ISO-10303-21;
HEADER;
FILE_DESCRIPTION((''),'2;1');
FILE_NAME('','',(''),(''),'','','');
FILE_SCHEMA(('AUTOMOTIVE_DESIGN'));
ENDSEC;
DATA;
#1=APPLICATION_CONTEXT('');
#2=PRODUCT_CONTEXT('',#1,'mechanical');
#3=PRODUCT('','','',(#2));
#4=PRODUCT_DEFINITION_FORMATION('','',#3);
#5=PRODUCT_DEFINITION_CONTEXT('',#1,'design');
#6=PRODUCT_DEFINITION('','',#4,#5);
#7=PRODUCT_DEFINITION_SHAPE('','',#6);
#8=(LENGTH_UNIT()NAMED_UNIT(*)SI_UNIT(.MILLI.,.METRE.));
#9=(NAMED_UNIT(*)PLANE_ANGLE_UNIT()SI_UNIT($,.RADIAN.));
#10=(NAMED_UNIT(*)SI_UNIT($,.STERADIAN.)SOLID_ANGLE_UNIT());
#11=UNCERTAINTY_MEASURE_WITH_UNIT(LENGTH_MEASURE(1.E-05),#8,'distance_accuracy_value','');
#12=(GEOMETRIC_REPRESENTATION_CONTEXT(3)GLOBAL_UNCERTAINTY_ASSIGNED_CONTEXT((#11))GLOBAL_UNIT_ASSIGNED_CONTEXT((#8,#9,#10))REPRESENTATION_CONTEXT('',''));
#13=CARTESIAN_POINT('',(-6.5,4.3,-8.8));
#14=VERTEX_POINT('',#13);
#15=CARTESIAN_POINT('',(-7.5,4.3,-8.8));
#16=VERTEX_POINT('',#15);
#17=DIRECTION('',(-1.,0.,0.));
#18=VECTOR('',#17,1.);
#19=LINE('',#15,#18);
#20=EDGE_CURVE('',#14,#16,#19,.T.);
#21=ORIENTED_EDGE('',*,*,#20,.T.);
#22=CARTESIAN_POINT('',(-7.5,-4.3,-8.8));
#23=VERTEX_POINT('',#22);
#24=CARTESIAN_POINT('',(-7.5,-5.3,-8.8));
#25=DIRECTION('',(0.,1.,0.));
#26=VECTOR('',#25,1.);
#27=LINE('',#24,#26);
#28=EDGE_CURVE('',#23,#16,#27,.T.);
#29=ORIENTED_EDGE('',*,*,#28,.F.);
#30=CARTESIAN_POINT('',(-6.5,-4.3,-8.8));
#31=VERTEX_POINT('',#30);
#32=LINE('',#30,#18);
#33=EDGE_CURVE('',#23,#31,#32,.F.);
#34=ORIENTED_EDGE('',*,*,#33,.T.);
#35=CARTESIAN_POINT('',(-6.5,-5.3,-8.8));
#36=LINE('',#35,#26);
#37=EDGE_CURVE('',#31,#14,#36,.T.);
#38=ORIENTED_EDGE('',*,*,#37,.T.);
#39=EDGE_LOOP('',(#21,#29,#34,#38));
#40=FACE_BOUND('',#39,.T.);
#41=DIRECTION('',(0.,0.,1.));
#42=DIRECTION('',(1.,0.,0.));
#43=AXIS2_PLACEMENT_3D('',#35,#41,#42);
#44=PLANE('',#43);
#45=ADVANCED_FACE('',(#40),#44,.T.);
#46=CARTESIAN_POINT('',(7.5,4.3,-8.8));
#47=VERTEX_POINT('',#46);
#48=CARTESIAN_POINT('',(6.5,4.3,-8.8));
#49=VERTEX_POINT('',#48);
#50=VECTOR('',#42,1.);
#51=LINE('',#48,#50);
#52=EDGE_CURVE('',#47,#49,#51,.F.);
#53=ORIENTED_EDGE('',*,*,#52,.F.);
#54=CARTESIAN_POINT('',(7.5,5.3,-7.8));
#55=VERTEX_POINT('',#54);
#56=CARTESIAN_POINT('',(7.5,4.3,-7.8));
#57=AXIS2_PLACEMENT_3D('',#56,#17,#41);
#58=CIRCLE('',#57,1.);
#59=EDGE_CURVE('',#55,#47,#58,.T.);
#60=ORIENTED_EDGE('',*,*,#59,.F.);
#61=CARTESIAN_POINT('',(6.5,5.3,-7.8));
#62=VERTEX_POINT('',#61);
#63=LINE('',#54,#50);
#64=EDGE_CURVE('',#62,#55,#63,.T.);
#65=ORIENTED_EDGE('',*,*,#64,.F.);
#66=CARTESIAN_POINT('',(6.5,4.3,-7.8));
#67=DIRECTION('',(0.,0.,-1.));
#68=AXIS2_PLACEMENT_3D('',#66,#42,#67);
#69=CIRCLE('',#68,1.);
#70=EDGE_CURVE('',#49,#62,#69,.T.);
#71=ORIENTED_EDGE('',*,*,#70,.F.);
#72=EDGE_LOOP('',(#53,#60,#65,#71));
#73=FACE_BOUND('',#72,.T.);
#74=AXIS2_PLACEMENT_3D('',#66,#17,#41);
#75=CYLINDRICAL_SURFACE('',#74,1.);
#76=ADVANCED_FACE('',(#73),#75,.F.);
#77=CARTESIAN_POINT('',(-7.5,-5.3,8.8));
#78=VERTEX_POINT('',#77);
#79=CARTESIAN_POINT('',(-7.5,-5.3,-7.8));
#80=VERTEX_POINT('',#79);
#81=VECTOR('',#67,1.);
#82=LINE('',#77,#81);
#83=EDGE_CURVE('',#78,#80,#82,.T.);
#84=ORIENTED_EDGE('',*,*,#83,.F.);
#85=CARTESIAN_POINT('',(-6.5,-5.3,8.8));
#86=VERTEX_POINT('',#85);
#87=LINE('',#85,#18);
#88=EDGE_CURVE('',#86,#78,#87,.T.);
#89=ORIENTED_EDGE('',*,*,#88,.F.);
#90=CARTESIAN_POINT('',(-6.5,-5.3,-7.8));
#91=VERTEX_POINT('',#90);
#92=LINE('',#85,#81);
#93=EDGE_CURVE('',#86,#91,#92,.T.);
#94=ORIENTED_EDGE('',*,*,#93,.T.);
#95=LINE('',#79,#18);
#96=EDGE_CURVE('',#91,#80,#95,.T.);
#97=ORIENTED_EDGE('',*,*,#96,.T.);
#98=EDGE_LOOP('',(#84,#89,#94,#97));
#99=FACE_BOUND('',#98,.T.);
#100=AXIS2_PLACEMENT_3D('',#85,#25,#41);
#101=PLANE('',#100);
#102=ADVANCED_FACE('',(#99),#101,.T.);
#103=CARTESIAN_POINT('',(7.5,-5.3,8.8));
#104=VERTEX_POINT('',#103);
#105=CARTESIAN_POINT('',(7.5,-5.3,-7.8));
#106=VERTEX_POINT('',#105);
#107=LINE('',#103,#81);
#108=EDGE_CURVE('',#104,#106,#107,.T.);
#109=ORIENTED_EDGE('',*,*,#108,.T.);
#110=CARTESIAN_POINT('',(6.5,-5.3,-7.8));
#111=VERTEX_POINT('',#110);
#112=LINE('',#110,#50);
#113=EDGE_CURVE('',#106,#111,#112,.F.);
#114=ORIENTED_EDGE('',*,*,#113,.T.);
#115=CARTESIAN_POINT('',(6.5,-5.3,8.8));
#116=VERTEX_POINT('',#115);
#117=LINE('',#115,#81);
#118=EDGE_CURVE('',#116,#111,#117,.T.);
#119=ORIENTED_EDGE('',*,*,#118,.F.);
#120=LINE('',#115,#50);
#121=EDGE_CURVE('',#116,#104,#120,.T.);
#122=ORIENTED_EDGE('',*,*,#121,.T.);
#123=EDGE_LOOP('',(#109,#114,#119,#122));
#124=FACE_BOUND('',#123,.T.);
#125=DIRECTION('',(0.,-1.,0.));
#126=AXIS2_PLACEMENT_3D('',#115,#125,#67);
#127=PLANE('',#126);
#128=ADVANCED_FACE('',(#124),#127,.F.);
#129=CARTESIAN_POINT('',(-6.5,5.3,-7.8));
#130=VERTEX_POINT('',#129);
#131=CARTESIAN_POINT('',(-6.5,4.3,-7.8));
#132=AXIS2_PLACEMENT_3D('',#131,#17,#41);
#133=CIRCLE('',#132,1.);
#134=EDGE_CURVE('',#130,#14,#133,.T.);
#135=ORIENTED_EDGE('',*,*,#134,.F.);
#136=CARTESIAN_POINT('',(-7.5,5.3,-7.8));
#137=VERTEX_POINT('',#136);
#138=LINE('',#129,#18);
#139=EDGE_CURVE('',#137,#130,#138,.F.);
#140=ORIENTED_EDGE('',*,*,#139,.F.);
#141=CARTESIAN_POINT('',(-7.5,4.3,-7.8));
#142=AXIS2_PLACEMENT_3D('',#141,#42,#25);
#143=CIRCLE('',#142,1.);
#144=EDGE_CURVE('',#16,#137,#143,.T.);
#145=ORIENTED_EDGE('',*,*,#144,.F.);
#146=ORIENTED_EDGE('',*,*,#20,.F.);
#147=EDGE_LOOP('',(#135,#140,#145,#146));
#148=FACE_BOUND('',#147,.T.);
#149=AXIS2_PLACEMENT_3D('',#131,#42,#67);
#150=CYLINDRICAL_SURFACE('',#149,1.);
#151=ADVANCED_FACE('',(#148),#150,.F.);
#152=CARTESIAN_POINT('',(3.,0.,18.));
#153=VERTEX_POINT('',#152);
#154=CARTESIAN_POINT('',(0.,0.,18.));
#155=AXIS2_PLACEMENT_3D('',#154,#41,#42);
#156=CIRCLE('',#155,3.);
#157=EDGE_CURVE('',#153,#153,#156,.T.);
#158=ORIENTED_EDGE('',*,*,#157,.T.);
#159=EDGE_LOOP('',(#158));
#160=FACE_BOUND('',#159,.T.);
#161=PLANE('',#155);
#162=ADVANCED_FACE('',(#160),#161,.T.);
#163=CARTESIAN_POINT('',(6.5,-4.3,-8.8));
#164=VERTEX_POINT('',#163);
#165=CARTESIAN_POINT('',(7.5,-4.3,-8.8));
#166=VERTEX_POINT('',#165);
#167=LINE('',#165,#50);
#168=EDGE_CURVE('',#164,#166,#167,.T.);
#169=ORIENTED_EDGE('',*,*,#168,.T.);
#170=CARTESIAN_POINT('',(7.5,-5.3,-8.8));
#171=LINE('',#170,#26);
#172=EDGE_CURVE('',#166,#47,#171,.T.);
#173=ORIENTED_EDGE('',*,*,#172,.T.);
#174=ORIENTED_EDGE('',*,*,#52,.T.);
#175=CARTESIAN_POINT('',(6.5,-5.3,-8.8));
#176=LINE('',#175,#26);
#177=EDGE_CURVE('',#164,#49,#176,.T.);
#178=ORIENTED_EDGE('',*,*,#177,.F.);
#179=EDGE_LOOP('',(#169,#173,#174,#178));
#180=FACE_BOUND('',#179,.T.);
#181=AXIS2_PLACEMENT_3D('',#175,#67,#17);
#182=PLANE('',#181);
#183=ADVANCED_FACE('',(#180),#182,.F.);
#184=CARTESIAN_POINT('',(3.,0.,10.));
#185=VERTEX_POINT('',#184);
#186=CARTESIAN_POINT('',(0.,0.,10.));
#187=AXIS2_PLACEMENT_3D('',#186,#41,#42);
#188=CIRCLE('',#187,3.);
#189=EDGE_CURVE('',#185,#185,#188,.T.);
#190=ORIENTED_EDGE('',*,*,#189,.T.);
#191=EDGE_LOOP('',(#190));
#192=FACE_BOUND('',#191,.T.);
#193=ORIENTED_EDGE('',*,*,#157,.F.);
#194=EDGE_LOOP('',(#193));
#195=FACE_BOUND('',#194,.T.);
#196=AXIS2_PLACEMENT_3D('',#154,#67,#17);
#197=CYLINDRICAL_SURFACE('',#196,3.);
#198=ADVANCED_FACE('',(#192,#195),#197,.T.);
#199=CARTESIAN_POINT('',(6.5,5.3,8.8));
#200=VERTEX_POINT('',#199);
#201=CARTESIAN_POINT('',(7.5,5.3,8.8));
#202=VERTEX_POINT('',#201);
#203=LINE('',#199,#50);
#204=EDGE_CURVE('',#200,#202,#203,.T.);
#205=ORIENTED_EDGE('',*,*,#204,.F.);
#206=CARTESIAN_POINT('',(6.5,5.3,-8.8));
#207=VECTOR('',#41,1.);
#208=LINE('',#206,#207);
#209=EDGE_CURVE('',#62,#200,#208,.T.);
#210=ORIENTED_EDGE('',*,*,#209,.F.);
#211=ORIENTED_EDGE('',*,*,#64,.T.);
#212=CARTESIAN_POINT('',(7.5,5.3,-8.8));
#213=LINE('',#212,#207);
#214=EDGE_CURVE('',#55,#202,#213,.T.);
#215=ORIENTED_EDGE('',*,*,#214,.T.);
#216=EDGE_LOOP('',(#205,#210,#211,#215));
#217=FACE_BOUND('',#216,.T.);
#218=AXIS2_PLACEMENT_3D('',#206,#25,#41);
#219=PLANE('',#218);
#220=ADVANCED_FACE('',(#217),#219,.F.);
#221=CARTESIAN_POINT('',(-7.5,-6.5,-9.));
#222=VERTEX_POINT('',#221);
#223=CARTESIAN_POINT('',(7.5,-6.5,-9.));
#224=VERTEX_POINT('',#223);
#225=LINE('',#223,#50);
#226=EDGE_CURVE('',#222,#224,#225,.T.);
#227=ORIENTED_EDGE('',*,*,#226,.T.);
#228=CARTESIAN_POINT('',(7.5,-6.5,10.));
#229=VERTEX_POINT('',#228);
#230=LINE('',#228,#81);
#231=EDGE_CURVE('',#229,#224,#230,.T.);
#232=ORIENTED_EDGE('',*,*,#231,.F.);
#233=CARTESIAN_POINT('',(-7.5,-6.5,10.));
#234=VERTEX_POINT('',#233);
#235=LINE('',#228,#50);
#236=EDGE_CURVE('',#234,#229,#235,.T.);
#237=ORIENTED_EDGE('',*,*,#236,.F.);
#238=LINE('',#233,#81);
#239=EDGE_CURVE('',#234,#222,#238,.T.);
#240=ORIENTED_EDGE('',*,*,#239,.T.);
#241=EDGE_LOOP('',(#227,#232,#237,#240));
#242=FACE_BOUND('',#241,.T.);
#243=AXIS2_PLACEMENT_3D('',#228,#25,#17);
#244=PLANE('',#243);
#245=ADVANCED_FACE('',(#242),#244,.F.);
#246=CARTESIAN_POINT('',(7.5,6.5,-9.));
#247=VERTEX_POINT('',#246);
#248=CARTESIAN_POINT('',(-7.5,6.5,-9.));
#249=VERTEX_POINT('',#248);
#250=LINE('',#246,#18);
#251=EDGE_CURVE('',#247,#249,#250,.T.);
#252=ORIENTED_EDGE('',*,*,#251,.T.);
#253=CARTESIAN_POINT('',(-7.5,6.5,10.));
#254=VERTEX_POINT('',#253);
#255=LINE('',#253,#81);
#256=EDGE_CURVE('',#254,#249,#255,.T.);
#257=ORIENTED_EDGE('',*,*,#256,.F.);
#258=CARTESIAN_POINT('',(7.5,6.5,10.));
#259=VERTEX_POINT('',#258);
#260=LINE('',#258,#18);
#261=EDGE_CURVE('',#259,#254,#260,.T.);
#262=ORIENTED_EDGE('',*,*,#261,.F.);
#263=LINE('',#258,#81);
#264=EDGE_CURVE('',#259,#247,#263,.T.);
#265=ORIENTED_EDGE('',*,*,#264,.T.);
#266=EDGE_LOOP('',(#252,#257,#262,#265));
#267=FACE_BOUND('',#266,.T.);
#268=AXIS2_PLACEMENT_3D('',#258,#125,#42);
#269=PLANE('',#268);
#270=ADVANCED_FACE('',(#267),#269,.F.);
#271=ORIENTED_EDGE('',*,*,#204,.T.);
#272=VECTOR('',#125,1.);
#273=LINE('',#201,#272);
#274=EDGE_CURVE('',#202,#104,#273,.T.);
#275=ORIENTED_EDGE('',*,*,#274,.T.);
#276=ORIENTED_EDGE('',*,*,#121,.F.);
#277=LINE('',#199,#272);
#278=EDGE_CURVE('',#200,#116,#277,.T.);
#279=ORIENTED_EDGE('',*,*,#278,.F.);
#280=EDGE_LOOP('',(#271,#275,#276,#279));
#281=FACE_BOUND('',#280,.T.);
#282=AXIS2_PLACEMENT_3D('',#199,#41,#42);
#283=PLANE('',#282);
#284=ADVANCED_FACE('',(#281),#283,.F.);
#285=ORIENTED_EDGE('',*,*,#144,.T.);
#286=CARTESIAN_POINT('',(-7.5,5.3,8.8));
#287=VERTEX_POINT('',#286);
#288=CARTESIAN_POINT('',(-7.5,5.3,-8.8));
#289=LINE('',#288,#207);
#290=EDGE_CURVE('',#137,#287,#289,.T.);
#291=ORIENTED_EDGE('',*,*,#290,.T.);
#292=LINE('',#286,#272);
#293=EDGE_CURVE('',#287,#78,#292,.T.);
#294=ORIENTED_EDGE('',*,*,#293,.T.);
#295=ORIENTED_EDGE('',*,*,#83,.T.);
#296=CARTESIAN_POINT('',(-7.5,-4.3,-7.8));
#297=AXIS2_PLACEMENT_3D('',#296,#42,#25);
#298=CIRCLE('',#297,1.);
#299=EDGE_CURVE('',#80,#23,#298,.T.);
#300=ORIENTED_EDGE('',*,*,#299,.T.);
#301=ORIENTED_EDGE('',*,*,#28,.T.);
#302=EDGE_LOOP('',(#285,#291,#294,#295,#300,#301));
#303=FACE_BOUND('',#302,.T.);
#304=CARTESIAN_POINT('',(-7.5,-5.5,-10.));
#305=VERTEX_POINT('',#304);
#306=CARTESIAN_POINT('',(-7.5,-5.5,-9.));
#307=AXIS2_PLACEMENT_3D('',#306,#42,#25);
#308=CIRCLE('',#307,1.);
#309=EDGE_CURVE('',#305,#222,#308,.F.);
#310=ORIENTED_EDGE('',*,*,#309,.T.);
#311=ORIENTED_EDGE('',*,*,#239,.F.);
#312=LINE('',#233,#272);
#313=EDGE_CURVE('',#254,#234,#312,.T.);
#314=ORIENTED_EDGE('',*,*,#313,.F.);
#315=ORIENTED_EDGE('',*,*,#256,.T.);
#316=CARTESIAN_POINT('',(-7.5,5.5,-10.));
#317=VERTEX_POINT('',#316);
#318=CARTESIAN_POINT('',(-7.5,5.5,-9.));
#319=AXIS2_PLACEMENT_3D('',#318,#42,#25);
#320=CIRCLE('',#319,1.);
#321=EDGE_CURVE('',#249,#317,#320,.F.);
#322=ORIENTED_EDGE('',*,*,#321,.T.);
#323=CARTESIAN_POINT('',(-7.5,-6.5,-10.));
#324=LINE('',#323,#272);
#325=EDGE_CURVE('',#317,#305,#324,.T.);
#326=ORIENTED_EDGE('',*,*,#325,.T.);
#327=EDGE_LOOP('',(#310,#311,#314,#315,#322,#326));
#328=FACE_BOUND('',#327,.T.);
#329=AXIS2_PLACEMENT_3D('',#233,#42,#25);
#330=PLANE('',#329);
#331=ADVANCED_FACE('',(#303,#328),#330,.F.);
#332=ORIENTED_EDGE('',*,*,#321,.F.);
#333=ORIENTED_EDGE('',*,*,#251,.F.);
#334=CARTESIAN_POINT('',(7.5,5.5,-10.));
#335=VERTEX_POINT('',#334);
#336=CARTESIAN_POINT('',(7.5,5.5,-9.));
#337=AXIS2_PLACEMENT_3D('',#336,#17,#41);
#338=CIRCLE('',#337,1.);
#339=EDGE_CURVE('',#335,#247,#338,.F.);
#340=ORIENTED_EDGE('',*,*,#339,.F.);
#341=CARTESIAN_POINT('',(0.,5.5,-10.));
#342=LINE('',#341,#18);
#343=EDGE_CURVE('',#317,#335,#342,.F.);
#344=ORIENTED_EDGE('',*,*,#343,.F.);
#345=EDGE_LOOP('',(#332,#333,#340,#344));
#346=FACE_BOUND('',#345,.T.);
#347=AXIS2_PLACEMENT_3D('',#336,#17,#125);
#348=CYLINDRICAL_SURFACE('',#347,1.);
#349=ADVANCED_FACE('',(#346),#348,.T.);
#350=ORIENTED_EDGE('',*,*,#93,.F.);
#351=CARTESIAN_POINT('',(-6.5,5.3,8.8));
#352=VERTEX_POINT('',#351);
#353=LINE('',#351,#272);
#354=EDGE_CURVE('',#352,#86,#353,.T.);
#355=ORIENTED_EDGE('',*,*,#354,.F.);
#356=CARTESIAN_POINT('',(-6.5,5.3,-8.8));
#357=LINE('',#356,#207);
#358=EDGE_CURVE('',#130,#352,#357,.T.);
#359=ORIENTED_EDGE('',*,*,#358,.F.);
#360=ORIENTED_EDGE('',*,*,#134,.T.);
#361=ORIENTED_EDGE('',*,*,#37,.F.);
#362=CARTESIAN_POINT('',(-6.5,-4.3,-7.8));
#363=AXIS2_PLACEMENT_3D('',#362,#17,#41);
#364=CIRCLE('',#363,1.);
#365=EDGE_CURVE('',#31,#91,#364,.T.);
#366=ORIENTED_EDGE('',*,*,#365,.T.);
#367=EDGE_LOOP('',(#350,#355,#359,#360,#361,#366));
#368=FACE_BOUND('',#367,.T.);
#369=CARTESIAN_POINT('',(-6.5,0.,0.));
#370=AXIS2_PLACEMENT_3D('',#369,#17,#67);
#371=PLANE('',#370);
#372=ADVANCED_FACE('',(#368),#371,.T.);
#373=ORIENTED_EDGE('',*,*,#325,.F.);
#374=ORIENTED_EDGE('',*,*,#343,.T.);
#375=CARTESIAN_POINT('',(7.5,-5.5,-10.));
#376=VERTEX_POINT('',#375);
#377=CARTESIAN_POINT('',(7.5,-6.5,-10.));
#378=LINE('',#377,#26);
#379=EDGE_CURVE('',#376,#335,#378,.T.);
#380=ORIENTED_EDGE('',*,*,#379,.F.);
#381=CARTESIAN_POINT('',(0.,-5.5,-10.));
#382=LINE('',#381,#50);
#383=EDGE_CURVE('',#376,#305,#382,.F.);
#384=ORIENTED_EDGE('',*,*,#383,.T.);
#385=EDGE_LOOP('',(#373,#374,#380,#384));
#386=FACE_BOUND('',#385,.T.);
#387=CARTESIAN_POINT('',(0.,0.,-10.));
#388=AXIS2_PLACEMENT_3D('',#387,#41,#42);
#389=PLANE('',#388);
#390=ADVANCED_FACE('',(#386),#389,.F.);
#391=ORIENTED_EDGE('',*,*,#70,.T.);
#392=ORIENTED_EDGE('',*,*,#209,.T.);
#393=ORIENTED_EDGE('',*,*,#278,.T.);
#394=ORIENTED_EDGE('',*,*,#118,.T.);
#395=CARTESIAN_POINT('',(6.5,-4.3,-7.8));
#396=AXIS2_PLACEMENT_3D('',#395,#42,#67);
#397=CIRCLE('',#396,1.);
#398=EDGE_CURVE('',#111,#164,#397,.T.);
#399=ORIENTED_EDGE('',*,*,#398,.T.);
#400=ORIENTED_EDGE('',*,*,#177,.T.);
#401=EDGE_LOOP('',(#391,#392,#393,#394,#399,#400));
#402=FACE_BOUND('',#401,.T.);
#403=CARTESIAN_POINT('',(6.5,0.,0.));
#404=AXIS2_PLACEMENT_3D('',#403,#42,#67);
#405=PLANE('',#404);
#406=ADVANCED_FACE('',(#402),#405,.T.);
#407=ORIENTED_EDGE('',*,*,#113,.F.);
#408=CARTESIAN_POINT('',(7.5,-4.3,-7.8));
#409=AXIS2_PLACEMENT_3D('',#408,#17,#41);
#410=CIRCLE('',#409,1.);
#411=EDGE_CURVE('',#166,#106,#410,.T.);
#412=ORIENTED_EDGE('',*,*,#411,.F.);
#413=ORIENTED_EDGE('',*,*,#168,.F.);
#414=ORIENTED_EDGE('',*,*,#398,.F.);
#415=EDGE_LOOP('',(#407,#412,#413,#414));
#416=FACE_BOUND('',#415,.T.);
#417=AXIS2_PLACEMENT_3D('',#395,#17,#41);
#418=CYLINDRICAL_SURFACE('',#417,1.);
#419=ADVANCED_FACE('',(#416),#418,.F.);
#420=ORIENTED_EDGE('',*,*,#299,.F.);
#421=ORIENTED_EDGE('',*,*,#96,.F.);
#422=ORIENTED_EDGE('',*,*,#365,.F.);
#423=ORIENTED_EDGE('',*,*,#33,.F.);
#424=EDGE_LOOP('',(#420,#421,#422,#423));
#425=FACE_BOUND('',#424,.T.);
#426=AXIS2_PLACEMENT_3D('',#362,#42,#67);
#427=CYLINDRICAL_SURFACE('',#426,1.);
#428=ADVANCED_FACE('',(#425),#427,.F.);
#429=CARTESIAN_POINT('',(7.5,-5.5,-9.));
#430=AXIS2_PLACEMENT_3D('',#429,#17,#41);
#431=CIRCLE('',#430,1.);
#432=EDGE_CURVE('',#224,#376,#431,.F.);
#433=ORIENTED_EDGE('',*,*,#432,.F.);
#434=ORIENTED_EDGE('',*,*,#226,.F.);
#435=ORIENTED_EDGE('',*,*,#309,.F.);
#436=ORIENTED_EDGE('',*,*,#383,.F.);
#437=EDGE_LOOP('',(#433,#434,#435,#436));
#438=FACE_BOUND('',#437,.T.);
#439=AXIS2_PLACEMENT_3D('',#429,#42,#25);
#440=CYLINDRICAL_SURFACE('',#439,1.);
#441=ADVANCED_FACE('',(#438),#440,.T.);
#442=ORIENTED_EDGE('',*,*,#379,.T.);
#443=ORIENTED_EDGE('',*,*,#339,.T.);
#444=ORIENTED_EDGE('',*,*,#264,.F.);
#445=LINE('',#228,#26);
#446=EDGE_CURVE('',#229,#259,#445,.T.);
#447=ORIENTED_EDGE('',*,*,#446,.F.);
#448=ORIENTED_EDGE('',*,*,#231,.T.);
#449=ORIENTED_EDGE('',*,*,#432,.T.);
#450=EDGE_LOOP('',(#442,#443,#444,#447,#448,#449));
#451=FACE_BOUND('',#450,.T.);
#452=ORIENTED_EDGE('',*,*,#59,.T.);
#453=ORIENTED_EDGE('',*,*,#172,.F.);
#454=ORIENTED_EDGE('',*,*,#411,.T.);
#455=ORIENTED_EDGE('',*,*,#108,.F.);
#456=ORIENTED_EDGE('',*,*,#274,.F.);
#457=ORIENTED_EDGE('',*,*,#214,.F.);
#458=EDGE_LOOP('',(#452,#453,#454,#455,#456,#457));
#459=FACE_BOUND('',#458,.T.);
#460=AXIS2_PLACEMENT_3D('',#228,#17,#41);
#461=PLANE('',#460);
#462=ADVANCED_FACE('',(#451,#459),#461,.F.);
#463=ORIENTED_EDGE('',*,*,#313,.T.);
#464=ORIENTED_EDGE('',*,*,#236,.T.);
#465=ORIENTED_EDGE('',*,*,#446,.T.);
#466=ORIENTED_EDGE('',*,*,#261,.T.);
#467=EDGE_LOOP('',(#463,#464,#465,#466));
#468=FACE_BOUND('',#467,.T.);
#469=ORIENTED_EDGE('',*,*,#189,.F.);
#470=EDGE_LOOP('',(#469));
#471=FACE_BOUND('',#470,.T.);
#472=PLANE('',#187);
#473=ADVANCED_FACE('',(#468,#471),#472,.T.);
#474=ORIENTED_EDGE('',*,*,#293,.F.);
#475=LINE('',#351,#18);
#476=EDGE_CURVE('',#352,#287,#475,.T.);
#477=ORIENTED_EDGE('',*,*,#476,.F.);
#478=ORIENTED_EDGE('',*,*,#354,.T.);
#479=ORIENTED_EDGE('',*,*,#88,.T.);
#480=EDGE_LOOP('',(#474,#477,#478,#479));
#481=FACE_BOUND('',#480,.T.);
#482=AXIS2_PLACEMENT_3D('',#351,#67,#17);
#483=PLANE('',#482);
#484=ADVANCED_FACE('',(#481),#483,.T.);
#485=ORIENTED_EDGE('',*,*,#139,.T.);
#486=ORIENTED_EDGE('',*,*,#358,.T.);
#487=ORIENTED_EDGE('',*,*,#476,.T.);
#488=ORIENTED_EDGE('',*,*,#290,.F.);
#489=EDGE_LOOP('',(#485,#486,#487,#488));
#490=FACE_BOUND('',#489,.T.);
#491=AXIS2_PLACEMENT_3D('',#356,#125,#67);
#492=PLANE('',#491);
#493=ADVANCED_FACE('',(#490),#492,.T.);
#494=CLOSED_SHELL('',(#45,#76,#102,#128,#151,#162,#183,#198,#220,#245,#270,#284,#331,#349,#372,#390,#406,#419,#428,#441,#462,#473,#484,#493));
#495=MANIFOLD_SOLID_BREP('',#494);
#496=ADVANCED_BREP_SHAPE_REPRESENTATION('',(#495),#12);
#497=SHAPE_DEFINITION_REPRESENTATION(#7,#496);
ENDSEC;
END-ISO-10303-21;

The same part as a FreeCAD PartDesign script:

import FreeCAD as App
import Part
import Sketcher

V = App.Vector


def edges_at(feature, points):
    """Names of the edges that pass closest to the given points."""
    edges = feature.Shape.Edges
    near = lambda p: min(range(len(edges)), key=lambda i: edges[i].distToShape(Part.Vertex(*p))[0])
    return sorted({f"Edge{near(p) + 1}" for p in points})


def add_polygon(sketch, points):
    """Adds a closed chain of lines whose ends are joined by coincident constraints."""
    first, n = sketch.GeometryCount, len(points)
    for a, b in zip(points, points[1:] + points[:1]):
        sketch.addGeometry(Part.LineSegment(App.Vector(*a, 0), App.Vector(*b, 0)), False)
    for i in range(n):
        sketch.addConstraint(Sketcher.Constraint("Coincident", first + i, 2, first + (i + 1) % n, 1))

doc = App.newDocument("Part")
body = doc.addObject("PartDesign::Body", "Body")

# Sketch on XY plane
sketch1 = body.newObject("Sketcher::SketchObject", "Sketch")
sketch1.AttachmentSupport = (doc.getObject("XY_Plane"), [""])
sketch1.MapMode = "FlatFace"
add_polygon(sketch1, [(-8, 6), (-8, -6), (8, -6), (8, 6)])  # lines 0-3
sketch1.addConstraint([
    Sketcher.Constraint("Vertical", 0),
    Sketcher.Constraint("Horizontal", 1),
    Sketcher.Constraint("Vertical", 2),
    Sketcher.Constraint("Horizontal", 3),
    Sketcher.Constraint("Symmetric", 0, 2, 2, 2, -1, 1),
    Sketcher.Constraint("DistanceX", 1, 1, 1, 2, 15.0),
    Sketcher.Constraint("DistanceY", 0, 2, 0, 1, 13.0),
])
pad1 = body.newObject("PartDesign::Pad", "Pad")
pad1.Profile = sketch1
pad1.Length = 20
pad1.Midplane = True
doc.recompute()

fillet = body.newObject("PartDesign::Fillet", "Fillet")
fillet.Base = (pad1, edges_at(pad1, [(0, 6.5, -10), (0, -6.5, -10)]))
fillet.Radius = 1

# Sketch on YZ plane
sketch2 = body.newObject("Sketcher::SketchObject", "Sketch001")
sketch2.AttachmentSupport = (doc.getObject("YZ_Plane"), [""])
sketch2.MapMode = "FlatFace"
sketch2.AttachmentOffset = App.Placement(V(0, 0, 7.5), App.Rotation())
add_polygon(sketch2, [(5, 9), (-5, 9), (-5, -9), (5, -9)])  # lines 0-3
sketch2.addConstraint([
    Sketcher.Constraint("Horizontal", 0),
    Sketcher.Constraint("Vertical", 1),
    Sketcher.Constraint("Horizontal", 2),
    Sketcher.Constraint("Vertical", 3),
    Sketcher.Constraint("Symmetric", 0, 2, 2, 2, -1, 1),
    Sketcher.Constraint("DistanceX", 0, 2, 0, 1, 10.6),
    Sketcher.Constraint("DistanceY", 1, 2, 1, 1, 17.6),
])
pocket1 = body.newObject("PartDesign::Pocket", "Pocket")
pocket1.Profile = sketch2
pocket1.Length = 1
doc.recompute()

fillet2 = body.newObject("PartDesign::Fillet", "Fillet001")
fillet2.Base = (pocket1, edges_at(pocket1, [(7, 5.3, -8.8), (7, -5.3, -8.8)]))
fillet2.Radius = 1
doc.recompute()

mirrored = body.newObject("PartDesign::Mirrored", "Mirrored")
mirrored.Originals = [pocket1]
mirrored.MirrorPlane = (doc.getObject("YZ_Plane"), [""])
body.Tip = mirrored
doc.recompute()

fillet3 = body.newObject("PartDesign::Fillet", "Fillet002")
fillet3.Base = (mirrored, edges_at(mirrored, [(-7, 5.3, -8.8), (-7, -5.3, -8.8)]))
fillet3.Radius = 1

# Sketch on XY plane
sketch3 = body.newObject("Sketcher::SketchObject", "Sketch002")
sketch3.AttachmentSupport = (doc.getObject("XY_Plane"), [""])
sketch3.MapMode = "FlatFace"
sketch3.AttachmentOffset = App.Placement(V(0, 0, 10), App.Rotation())
sketch3.addGeometry(Part.Circle(V(0, 0, 0), V(0, 0, 1), 3), False)
sketch3.addConstraint([
    Sketcher.Constraint("Coincident", 0, 3, -1, 1),
    Sketcher.Constraint("Diameter", 0, 6.0),
])
pad2 = body.newObject("PartDesign::Pad", "Pad001")
pad2.Profile = sketch3
pad2.Length = 8

doc.recompute()
